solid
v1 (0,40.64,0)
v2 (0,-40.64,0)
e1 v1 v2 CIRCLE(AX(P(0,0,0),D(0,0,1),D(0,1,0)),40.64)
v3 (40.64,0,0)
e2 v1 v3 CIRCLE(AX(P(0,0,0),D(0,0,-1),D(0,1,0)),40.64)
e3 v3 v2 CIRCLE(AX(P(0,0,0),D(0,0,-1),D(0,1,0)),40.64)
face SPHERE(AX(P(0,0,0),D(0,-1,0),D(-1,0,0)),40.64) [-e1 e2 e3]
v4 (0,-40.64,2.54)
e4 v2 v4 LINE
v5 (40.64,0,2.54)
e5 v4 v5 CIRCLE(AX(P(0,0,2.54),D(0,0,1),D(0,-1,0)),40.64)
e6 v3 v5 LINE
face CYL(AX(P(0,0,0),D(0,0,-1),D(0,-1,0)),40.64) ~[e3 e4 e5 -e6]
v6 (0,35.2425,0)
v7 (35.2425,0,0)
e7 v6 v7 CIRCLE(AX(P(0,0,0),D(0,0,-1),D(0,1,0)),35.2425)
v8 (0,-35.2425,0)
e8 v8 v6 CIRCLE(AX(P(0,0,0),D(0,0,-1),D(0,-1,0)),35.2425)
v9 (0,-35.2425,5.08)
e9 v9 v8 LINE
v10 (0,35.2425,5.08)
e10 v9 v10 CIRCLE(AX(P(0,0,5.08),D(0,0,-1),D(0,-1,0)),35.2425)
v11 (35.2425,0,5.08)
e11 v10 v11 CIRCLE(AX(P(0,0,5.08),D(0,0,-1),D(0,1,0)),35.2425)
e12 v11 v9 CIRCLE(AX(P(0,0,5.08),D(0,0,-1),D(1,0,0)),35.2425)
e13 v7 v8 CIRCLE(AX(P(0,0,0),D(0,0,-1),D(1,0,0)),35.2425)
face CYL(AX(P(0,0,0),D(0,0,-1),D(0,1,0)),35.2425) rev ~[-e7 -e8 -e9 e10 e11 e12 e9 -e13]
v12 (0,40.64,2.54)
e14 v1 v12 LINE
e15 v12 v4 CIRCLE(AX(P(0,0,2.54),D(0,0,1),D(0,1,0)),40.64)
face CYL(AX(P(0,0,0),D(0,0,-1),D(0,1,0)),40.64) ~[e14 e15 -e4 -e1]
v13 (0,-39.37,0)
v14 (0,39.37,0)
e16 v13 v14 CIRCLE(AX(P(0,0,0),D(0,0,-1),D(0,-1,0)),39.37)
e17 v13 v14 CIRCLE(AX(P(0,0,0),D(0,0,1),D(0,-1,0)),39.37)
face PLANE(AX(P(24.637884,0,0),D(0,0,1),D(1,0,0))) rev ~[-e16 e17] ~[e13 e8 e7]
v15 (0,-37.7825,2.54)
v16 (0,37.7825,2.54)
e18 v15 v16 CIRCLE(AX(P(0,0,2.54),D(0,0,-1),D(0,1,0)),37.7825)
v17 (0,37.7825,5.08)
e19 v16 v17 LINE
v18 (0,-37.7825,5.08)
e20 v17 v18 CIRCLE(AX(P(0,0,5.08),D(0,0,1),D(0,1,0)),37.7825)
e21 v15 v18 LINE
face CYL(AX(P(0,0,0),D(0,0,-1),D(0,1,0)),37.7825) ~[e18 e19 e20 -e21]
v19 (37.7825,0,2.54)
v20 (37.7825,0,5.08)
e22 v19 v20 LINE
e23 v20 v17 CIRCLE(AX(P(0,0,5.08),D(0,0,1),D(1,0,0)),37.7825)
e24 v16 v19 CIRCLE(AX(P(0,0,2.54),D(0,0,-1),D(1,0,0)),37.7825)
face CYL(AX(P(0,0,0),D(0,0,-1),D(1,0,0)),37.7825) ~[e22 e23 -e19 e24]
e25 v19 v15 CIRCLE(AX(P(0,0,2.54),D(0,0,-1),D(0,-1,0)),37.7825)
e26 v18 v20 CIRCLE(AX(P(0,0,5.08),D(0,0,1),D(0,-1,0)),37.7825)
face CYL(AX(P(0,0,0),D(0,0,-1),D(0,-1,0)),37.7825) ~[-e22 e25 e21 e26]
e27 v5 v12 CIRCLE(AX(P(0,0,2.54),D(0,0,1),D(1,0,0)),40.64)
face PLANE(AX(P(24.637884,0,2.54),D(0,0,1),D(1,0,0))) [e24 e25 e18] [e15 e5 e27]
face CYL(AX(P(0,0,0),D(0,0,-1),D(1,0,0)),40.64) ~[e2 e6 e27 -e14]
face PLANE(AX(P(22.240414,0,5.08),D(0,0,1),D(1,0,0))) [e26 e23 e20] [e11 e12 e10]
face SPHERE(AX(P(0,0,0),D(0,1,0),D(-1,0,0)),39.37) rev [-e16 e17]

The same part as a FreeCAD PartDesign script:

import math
import FreeCAD as App
import Part
import Sketcher
from FreeCAD import Vector
Q = App.Units.Quantity

doc = App.newDocument("Part")
body = doc.addObject("PartDesign::Body", "Body")

# Sketch on XY plane
sketch1 = body.newObject("Sketcher::SketchObject", "Sketch")
sketch1.AttachmentSupport = (doc.getObject("XY_Plane"), [""])
sketch1.MapMode = "FlatFace"
sketch1.addGeometry(Part.ArcOfCircle(Part.Circle(Vector(0, 0, 0), Vector(0, 0, 1), 39.4), math.radians(90), math.radians(270)), False)
sketch1.addGeometry(Part.LineSegment(Vector(0, 39.4, 0), Vector(0, 40.6, 0)), False)
sketch1.addGeometry(Part.ArcOfCircle(Part.Circle(Vector(0, 0, 0), Vector(0, 0, 1), 40.6), math.radians(90), math.radians(270)), False)
sketch1.addGeometry(Part.LineSegment(Vector(0, -40.6, 0), Vector(0, -39.4, 0)), False)
sketch1.addConstraint(Sketcher.Constraint("Coincident", 0, 1, 1, 1))
sketch1.addConstraint(Sketcher.Constraint("Coincident", 1, 2, 2, 1))
sketch1.addConstraint(Sketcher.Constraint("Coincident", 2, 2, 3, 1))
sketch1.addConstraint(Sketcher.Constraint("Coincident", 3, 2, 0, 2))
sketch1.addConstraint(Sketcher.Constraint("Vertical", 1))
sketch1.addConstraint(Sketcher.Constraint("Vertical", 3))
sketch1.addConstraint(Sketcher.Constraint("Coincident", 0, 3, -1, 1))
sketch1.addConstraint(Sketcher.Constraint("Coincident", 2, 3, -1, 1))
sketch1.addConstraint(Sketcher.Constraint("PointOnObject", 0, 1, -2))
sketch1.addConstraint(Sketcher.Constraint("PointOnObject", 2, 2, -2))
sketch1.addConstraint(Sketcher.Constraint("Radius", 2, Q("1.6 in")))
sketch1.addConstraint(Sketcher.Constraint("Radius", 0, Q("1.55 in")))
revolution = body.newObject("PartDesign::Revolution", "Revolution")
revolution.Profile = sketch1
revolution.ReferenceAxis = (sketch1, ["V_Axis"])
revolution.Angle = 180
revolution.Reversed = True

# Sketch on XY plane
sketch2 = body.newObject("Sketcher::SketchObject", "Sketch001")
sketch2.AttachmentSupport = (doc.getObject("XY_Plane"), [""])
sketch2.MapMode = "FlatFace"
sketch2.addGeometry(Part.ArcOfCircle(Part.Circle(Vector(0, 0, 0), Vector(0, 0, 1), 41), math.radians(-90), math.radians(0)), False)
sketch2.addGeometry(Part.ArcOfCircle(Part.Circle(Vector(0, 0, 0), Vector(0, 0, 1), 41), math.radians(0), math.radians(90)), False)
sketch2.addGeometry(Part.ArcOfCircle(Part.Circle(Vector(0, 0, 0), Vector(0, 0, 1), 41), math.radians(90), math.radians(270)), False)
sketch2.addGeometry(Part.ArcOfCircle(Part.Circle(Vector(0, 0, 0), Vector(0, 0, 1), 35), math.radians(0), math.radians(90)), False)
sketch2.addGeometry(Part.ArcOfCircle(Part.Circle(Vector(0, 0, 0), Vector(0, 0, 1), 35), math.radians(-90), math.radians(0)), False)
sketch2.addGeometry(Part.ArcOfCircle(Part.Circle(Vector(0, 0, 0), Vector(0, 0, 1), 35), math.radians(90), math.radians(270)), False)
sketch2.addConstraint(Sketcher.Constraint("Tangent", 0, 2, 1, 1))
sketch2.addConstraint(Sketcher.Constraint("Tangent", 1, 2, 2, 1))
sketch2.addConstraint(Sketcher.Constraint("Tangent", 2, 2, 0, 1))
sketch2.addConstraint(Sketcher.Constraint("Tangent", 3, 1, 4, 2))
sketch2.addConstraint(Sketcher.Constraint("Tangent", 4, 1, 5, 2))
sketch2.addConstraint(Sketcher.Constraint("Tangent", 5, 1, 3, 2))
sketch2.addConstraint(Sketcher.Constraint("Coincident", 0, 3, -1, 1))
sketch2.addConstraint(Sketcher.Constraint("Coincident", 3, 3, -1, 1))
sketch2.addConstraint(Sketcher.Constraint("PointOnObject", 0, 2, -1))
sketch2.addConstraint(Sketcher.Constraint("PointOnObject", 1, 2, -2))
sketch2.addConstraint(Sketcher.Constraint("PointOnObject", 2, 2, -2))
sketch2.addConstraint(Sketcher.Constraint("PointOnObject", 3, 1, -1))
sketch2.addConstraint(Sketcher.Constraint("PointOnObject", 4, 1, -2))
sketch2.addConstraint(Sketcher.Constraint("PointOnObject", 5, 1, -2))
sketch2.addConstraint(Sketcher.Constraint("Radius", 0, Q("1.6 in")))
sketch2.addConstraint(Sketcher.Constraint("Radius", 3, Q("1.3875 in")))
pad1 = body.newObject("PartDesign::Pad", "Pad")
pad1.Profile = sketch2
pad1.Length = Q("0.1 in")

# Sketch on XY plane
sketch3 = body.newObject("Sketcher::SketchObject", "Sketch002")
sketch3.AttachmentSupport = (doc.getObject("XY_Plane"), [""])
sketch3.MapMode = "FlatFace"
sketch3.addGeometry(Part.ArcOfCircle(Part.Circle(Vector(0, 0, 0), Vector(0, 0, 1), 38), math.radians(-90), math.radians(0)), False)
sketch3.addGeometry(Part.ArcOfCircle(Part.Circle(Vector(0, 0, 0), Vector(0, 0, 1), 38), math.radians(0), math.radians(90)), False)
sketch3.addGeometry(Part.ArcOfCircle(Part.Circle(Vector(0, 0, 0), Vector(0, 0, 1), 38), math.radians(90), math.radians(270)), False)
sketch3.addGeometry(Part.ArcOfCircle(Part.Circle(Vector(0, 0, 0), Vector(0, 0, 1), 35), math.radians(0), math.radians(90)), False)
sketch3.addGeometry(Part.ArcOfCircle(Part.Circle(Vector(0, 0, 0), Vector(0, 0, 1), 35), math.radians(-90), math.radians(0)), False)
sketch3.addGeometry(Part.ArcOfCircle(Part.Circle(Vector(0, 0, 0), Vector(0, 0, 1), 35), math.radians(90), math.radians(270)), False)
sketch3.addConstraint(Sketcher.Constraint("Tangent", 0, 2, 1, 1))
sketch3.addConstraint(Sketcher.Constraint("Tangent", 1, 2, 2, 1))
sketch3.addConstraint(Sketcher.Constraint("Tangent", 2, 2, 0, 1))
sketch3.addConstraint(Sketcher.Constraint("Tangent", 3, 1, 4, 2))
sketch3.addConstraint(Sketcher.Constraint("Tangent", 4, 1, 5, 2))
sketch3.addConstraint(Sketcher.Constraint("Tangent", 5, 1, 3, 2))
sketch3.addConstraint(Sketcher.Constraint("Coincident", 0, 3, -1, 1))
sketch3.addConstraint(Sketcher.Constraint("Coincident", 3, 3, -1, 1))
sketch3.addConstraint(Sketcher.Constraint("PointOnObject", 0, 2, -1))
sketch3.addConstraint(Sketcher.Constraint("PointOnObject", 1, 2, -2))
sketch3.addConstraint(Sketcher.Constraint("PointOnObject", 2, 2, -2))
sketch3.addConstraint(Sketcher.Constraint("PointOnObject", 3, 1, -1))
sketch3.addConstraint(Sketcher.Constraint("PointOnObject", 4, 1, -2))
sketch3.addConstraint(Sketcher.Constraint("PointOnObject", 5, 1, -2))
sketch3.addConstraint(Sketcher.Constraint("Radius", 0, Q("1.4875 in")))
sketch3.addConstraint(Sketcher.Constraint("Radius", 3, Q("1.3875 in")))
pad2 = body.newObject("PartDesign::Pad", "Pad001")
pad2.Profile = sketch3
pad2.Length = Q("0.2 in")

doc.recompute()
